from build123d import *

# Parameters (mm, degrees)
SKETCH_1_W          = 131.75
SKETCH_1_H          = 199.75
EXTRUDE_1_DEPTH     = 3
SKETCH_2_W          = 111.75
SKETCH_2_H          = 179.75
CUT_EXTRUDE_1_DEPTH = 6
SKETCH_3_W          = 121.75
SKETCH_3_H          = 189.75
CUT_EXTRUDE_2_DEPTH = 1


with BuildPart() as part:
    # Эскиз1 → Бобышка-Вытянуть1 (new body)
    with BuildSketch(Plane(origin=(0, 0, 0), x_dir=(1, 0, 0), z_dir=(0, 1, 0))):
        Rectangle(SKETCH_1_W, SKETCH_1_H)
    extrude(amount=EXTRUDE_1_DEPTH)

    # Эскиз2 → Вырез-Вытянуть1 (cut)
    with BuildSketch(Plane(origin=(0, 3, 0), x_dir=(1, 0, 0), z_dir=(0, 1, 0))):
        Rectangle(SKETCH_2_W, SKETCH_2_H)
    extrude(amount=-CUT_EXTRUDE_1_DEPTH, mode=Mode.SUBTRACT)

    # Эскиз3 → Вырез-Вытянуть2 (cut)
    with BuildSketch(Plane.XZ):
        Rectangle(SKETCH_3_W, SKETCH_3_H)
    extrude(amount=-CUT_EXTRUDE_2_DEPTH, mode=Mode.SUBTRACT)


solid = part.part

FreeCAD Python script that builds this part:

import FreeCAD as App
import Part
import Sketcher


def add_polygon(sketch, points):
    """Adds a closed chain of lines whose ends are joined by coincident constraints."""
    first, n = sketch.GeometryCount, len(points)
    for a, b in zip(points, points[1:] + points[:1]):
        sketch.addGeometry(Part.LineSegment(App.Vector(*a, 0), App.Vector(*b, 0)), False)
    for i in range(n):
        sketch.addConstraint(Sketcher.Constraint("Coincident", first + i, 2, first + (i + 1) % n, 1))

doc = App.newDocument("Part")
body = doc.addObject("PartDesign::Body", "Body")

sketch1 = doc.addObject("Sketcher::SketchObject", "Sketch")
body.addObject(sketch1)
sketch1.AttachmentSupport = (doc.XZ_Plane, [""])
sketch1.MapMode = "FlatFace"
add_polygon(sketch1, [(-65.875, -99.875), (-65.875, 99.875), (65.875, 99.875), (65.875, -99.875)])
sketch1.addConstraint([
    Sketcher.Constraint("Vertical", 0),
    Sketcher.Constraint("Horizontal", 1),
    Sketcher.Constraint("Vertical", 2),
    Sketcher.Constraint("Horizontal", 3),
    Sketcher.Constraint("Symmetric", 0, 2, 2, 2, -1, 1),
    Sketcher.Constraint("DistanceX", 1, 1, 1, 2, 131.75),
    Sketcher.Constraint("DistanceY", 0, 1, 0, 2, 199.75),
])
pad1 = doc.addObject("PartDesign::Pad", "Pad")
body.addObject(pad1)
pad1.Profile = sketch1
pad1.Length = 3
pad1.Reversed = True

sketch2 = doc.addObject("Sketcher::SketchObject", "Sketch001")
body.addObject(sketch2)
sketch2.AttachmentSupport = (doc.XZ_Plane, [""])
sketch2.MapMode = "FlatFace"
sketch2.AttachmentOffset = App.Placement(App.Vector(0, 0, -3), App.Rotation())
add_polygon(sketch2, [(-55.875, -89.875), (-55.875, 89.875), (55.875, 89.875), (55.875, -89.875)])
sketch2.addConstraint([
    Sketcher.Constraint("Vertical", 0),
    Sketcher.Constraint("Horizontal", 1),
    Sketcher.Constraint("Vertical", 2),
    Sketcher.Constraint("Horizontal", 3),
    Sketcher.Constraint("Symmetric", 0, 2, 2, 2, -1, 1),
    Sketcher.Constraint("DistanceX", 1, 1, 1, 2, 111.75),
    Sketcher.Constraint("DistanceY", 0, 1, 0, 2, 179.75),
])
pocket1 = doc.addObject("PartDesign::Pocket", "Pocket")
body.addObject(pocket1)
pocket1.Profile = sketch2
pocket1.Length = 6
pocket1.Reversed = True

sketch3 = doc.addObject("Sketcher::SketchObject", "Sketch002")
body.addObject(sketch3)
sketch3.AttachmentSupport = (doc.XZ_Plane, [""])
sketch3.MapMode = "FlatFace"
add_polygon(sketch3, [(-60.875, 94.875), (-60.875, -94.875), (60.875, -94.875), (60.875, 94.875)])
sketch3.addConstraint([
    Sketcher.Constraint("Vertical", 0),
    Sketcher.Constraint("Horizontal", 1),
    Sketcher.Constraint("Vertical", 2),
    Sketcher.Constraint("Horizontal", 3),
    Sketcher.Constraint("Symmetric", 0, 2, 2, 2, -1, 1),
    Sketcher.Constraint("DistanceX", 1, 1, 1, 2, 121.75),
    Sketcher.Constraint("DistanceY", 0, 2, 0, 1, 189.75),
])
pocket2 = doc.addObject("PartDesign::Pocket", "Pocket001")
body.addObject(pocket2)
pocket2.Profile = sketch3
pocket2.Length = 1

doc.recompute()
